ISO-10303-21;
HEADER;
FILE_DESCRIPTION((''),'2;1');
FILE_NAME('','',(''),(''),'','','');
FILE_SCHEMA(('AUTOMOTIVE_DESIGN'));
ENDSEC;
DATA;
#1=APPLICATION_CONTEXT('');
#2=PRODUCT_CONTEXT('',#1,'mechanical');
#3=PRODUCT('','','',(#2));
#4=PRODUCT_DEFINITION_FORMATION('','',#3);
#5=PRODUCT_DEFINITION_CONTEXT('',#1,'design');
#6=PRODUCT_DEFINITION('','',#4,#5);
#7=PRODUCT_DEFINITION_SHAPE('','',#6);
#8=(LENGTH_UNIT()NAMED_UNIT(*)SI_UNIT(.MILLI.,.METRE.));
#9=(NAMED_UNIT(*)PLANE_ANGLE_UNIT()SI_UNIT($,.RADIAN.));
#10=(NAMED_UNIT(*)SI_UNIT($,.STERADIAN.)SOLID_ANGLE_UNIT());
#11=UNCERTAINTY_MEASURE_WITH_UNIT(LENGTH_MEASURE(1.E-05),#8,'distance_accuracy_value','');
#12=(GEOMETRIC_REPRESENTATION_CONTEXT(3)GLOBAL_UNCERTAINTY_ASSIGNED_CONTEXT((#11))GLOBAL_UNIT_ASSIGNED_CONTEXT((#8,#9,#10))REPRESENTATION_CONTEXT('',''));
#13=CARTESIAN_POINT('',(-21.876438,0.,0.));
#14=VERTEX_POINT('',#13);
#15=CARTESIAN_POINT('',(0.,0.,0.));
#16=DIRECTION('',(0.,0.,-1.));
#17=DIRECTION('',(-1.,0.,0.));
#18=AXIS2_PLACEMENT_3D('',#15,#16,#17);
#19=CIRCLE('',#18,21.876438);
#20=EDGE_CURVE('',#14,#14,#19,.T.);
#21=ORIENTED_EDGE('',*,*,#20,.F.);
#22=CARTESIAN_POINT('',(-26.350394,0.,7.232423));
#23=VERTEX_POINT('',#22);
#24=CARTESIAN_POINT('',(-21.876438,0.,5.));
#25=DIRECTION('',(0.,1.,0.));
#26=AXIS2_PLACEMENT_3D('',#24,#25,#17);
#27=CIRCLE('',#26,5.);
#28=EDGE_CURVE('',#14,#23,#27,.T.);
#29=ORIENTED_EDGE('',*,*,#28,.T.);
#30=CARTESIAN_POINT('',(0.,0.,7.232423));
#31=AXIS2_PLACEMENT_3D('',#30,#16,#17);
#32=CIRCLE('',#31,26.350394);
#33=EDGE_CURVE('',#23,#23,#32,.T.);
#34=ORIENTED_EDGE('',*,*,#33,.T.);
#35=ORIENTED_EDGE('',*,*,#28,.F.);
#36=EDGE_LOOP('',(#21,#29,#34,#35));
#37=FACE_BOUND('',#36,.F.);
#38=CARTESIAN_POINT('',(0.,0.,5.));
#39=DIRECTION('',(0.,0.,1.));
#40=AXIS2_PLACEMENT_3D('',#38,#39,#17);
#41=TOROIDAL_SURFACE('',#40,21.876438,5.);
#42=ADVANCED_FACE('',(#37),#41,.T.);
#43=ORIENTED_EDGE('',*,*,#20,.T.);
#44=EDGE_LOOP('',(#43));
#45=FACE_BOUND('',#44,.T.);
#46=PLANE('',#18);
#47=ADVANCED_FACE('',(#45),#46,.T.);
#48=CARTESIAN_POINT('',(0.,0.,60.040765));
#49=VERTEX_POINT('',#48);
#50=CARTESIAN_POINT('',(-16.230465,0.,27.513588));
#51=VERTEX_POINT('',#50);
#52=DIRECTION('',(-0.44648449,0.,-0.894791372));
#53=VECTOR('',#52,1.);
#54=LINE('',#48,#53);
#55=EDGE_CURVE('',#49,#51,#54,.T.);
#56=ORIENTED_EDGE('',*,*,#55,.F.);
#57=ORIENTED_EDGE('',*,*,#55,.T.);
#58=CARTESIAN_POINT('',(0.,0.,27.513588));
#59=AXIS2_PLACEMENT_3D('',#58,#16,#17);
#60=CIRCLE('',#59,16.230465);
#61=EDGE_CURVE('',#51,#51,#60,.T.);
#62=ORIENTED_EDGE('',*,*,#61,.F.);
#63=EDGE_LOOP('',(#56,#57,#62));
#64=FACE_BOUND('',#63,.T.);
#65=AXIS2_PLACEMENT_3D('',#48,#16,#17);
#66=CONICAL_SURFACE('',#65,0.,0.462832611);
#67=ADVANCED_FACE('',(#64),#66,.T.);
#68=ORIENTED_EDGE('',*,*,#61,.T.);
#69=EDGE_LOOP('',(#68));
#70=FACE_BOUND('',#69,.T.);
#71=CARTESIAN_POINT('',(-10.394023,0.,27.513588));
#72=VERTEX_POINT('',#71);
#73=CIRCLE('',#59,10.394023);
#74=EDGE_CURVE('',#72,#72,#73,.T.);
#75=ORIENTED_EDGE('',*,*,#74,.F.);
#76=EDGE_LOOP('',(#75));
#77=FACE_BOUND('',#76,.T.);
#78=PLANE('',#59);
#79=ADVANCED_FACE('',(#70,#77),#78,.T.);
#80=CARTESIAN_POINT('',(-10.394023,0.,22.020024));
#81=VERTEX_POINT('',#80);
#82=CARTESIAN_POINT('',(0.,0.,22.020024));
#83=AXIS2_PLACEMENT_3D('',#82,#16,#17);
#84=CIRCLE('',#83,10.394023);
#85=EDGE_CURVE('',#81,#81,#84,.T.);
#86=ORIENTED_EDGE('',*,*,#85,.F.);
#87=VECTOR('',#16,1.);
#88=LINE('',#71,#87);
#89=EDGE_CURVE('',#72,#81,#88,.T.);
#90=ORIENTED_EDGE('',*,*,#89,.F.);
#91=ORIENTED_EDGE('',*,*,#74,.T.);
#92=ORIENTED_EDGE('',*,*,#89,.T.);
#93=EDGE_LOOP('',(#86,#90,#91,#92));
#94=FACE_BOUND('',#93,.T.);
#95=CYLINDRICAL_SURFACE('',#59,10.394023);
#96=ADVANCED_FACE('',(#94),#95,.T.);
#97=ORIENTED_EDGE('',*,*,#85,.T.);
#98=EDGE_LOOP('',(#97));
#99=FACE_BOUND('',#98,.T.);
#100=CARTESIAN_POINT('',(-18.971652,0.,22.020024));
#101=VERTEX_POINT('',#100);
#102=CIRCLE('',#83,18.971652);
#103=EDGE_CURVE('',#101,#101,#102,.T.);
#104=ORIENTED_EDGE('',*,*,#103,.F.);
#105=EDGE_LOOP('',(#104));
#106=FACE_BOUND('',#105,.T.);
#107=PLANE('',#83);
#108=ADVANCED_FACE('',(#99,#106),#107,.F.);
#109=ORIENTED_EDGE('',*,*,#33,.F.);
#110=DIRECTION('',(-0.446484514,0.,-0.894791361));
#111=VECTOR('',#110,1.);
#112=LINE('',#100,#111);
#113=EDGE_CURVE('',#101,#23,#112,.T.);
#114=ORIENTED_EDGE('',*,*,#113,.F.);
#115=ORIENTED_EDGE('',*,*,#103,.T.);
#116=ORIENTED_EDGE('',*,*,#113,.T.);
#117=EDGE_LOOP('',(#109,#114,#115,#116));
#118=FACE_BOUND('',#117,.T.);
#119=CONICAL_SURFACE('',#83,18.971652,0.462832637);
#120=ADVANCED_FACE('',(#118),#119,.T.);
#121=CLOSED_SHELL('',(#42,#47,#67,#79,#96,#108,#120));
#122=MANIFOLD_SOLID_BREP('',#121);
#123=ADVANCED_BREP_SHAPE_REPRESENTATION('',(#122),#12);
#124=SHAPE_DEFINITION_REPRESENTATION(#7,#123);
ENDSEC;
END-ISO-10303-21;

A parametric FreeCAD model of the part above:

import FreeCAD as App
import Part
import Sketcher


def edges_at(feature, points):
    """Names of the edges that pass closest to the given points."""
    edges = feature.Shape.Edges
    near = lambda p: min(range(len(edges)), key=lambda i: edges[i].distToShape(Part.Vertex(*p))[0])
    return sorted({f"Edge{near(p) + 1}" for p in points})

doc = App.newDocument("Part")
body = doc.addObject("PartDesign::Body", "Body")

# Sketch on XZ plane
sketch1 = body.newObject("Sketcher::SketchObject", "Sketch")
sketch1.AttachmentSupport = (doc.getObject("XZ_Plane"), [""])
sketch1.MapMode = "FlatFace"
sketch1.addGeometry([
    Part.LineSegment(App.Vector(-30, 0, 0), App.Vector(0, 0, 0)),  # 0
    Part.LineSegment(App.Vector(0, 0, 0), App.Vector(0, 60, 0)),  # 1
    Part.LineSegment(App.Vector(0, 60, 0), App.Vector(-16, 28, 0)),  # 2
    Part.LineSegment(App.Vector(-16, 28, 0), App.Vector(-10, 28, 0)),  # 3
    Part.LineSegment(App.Vector(-10, 28, 0), App.Vector(-10, 22, 0)),  # 4
    Part.LineSegment(App.Vector(-10, 22, 0), App.Vector(-19, 22, 0)),  # 5
    Part.LineSegment(App.Vector(-19, 22, 0), App.Vector(-30, 0, 0)),  # 6
], False)
sketch1.addConstraint([
    Sketcher.Constraint("Coincident", 0, 2, 1, 1),
    Sketcher.Constraint("Coincident", 1, 2, 2, 1),
    Sketcher.Constraint("Coincident", 2, 2, 3, 1),
    Sketcher.Constraint("Coincident", 3, 2, 4, 1),
    Sketcher.Constraint("Coincident", 4, 2, 5, 1),
    Sketcher.Constraint("Coincident", 5, 2, 6, 1),
    Sketcher.Constraint("Coincident", 6, 2, 0, 1),
    Sketcher.Constraint("Horizontal", 0),
    Sketcher.Constraint("Vertical", 1),
    Sketcher.Constraint("Horizontal", 3),
    Sketcher.Constraint("Vertical", 4),
    Sketcher.Constraint("Horizontal", 5),
    Sketcher.Constraint("Coincident", 0, 2, -1, 1),
    Sketcher.Constraint("Parallel", 2, 6),
    Sketcher.Constraint("DistanceX", 0, 1, 0, 2, 29.959241),
    Sketcher.Constraint("DistanceX", 3, 1, 3, 2, 5.836442),
    Sketcher.Constraint("DistanceX", 5, 2, 5, 1, 8.577629),
    Sketcher.Constraint("Distance", 2, 36.351688),
    Sketcher.Constraint("DistanceY", 1, 1, 1, 2, 60.040765),
    Sketcher.Constraint("DistanceY", 4, 2, 4, 1, 5.493564),
])
revolution = body.newObject("PartDesign::Revolution", "Revolution")
revolution.Profile = sketch1
revolution.ReferenceAxis = (sketch1, ["V_Axis"])
revolution.Angle = 360
doc.recompute()

fillet = body.newObject("PartDesign::Fillet", "Fillet")
fillet.Base = (revolution, edges_at(revolution, [(29.959, 0, 0)]))
fillet.Radius = 5

doc.recompute()
